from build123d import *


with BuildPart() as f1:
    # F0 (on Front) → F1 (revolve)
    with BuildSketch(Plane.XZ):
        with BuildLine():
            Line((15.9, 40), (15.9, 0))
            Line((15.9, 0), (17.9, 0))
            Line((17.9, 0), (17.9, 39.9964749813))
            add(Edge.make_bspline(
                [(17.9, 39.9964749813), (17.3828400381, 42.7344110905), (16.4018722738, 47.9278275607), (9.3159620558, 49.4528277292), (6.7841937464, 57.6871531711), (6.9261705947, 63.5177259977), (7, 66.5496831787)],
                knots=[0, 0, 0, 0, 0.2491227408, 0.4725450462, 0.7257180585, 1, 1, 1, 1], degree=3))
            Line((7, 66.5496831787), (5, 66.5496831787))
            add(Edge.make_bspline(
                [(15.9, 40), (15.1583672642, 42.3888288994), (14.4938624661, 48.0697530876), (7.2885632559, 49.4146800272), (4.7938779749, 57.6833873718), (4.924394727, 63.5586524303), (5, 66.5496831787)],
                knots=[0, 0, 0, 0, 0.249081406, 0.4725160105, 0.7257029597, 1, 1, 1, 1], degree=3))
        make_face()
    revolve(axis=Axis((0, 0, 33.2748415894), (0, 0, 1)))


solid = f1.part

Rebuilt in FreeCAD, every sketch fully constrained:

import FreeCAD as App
import Part
import Sketcher

V = App.Vector

doc = App.newDocument("Part")
body = doc.addObject("PartDesign::Body", "Body")

sketch1 = doc.addObject("Sketcher::SketchObject", "Sketch")
body.addObject(sketch1)
sketch1.AttachmentSupport = (doc.XZ_Plane, [""])
sketch1.MapMode = "FlatFace"
sketch1.addGeometry([
    Part.LineSegment(V(15.9, 40, 0), V(15.9, 0, 0)),
    Part.LineSegment(V(15.9, 0, 0), V(17.9, 0, 0)),
    Part.LineSegment(V(17.9, 0, 0), V(17.9, 39.996475, 0)),
    Part.BSplineCurve([V(17.9, 39.996475, 0), V(17.38284, 42.734411, 0), V(16.401872, 47.927828, 0), V(9.315962, 49.452828, 0), V(6.784194, 57.687153, 0), V(6.926171, 63.517726, 0), V(7, 66.549683, 0)], [4, 1, 1, 1, 4], [0, 0.249122741, 0.472545046, 0.725718059, 1], False, 3, [1, 1, 1, 1, 1, 1, 1], False),
    Part.LineSegment(V(7, 66.549683, 0), V(5, 66.549683, 0)),
    Part.BSplineCurve([V(15.9, 40, 0), V(15.158367, 42.388829, 0), V(14.493862, 48.069753, 0), V(7.288563, 49.41468, 0), V(4.793878, 57.683387, 0), V(4.924395, 63.558652, 0), V(5, 66.549683, 0)], [4, 1, 1, 1, 4], [0, 0.249081406, 0.472516011, 0.72570296, 1], False, 3, [1, 1, 1, 1, 1, 1, 1], False),
], False)
sketch1.addConstraint([
    Sketcher.Constraint("Block", 3),
    Sketcher.Constraint("Block", 5),
    Sketcher.Constraint("Coincident", 0, 2, 1, 1),
    Sketcher.Constraint("Coincident", 1, 2, 2, 1),
    Sketcher.Constraint("Coincident", 2, 2, 3, 1),
    Sketcher.Constraint("Coincident", 3, 2, 4, 1),
    Sketcher.Constraint("Coincident", 4, 2, 5, 2),
    Sketcher.Constraint("Coincident", 5, 1, 0, 1),
    Sketcher.Constraint("Vertical", 0),
    Sketcher.Constraint("Horizontal", 1),
    Sketcher.Constraint("Vertical", 2),
    Sketcher.Constraint("PointOnObject", 0, 2, -1),
])
revolution = doc.addObject("PartDesign::Revolution", "Revolution")
body.addObject(revolution)
revolution.Profile = sketch1
revolution.ReferenceAxis = (sketch1, ["V_Axis"])
revolution.Angle = 360

doc.recompute()
